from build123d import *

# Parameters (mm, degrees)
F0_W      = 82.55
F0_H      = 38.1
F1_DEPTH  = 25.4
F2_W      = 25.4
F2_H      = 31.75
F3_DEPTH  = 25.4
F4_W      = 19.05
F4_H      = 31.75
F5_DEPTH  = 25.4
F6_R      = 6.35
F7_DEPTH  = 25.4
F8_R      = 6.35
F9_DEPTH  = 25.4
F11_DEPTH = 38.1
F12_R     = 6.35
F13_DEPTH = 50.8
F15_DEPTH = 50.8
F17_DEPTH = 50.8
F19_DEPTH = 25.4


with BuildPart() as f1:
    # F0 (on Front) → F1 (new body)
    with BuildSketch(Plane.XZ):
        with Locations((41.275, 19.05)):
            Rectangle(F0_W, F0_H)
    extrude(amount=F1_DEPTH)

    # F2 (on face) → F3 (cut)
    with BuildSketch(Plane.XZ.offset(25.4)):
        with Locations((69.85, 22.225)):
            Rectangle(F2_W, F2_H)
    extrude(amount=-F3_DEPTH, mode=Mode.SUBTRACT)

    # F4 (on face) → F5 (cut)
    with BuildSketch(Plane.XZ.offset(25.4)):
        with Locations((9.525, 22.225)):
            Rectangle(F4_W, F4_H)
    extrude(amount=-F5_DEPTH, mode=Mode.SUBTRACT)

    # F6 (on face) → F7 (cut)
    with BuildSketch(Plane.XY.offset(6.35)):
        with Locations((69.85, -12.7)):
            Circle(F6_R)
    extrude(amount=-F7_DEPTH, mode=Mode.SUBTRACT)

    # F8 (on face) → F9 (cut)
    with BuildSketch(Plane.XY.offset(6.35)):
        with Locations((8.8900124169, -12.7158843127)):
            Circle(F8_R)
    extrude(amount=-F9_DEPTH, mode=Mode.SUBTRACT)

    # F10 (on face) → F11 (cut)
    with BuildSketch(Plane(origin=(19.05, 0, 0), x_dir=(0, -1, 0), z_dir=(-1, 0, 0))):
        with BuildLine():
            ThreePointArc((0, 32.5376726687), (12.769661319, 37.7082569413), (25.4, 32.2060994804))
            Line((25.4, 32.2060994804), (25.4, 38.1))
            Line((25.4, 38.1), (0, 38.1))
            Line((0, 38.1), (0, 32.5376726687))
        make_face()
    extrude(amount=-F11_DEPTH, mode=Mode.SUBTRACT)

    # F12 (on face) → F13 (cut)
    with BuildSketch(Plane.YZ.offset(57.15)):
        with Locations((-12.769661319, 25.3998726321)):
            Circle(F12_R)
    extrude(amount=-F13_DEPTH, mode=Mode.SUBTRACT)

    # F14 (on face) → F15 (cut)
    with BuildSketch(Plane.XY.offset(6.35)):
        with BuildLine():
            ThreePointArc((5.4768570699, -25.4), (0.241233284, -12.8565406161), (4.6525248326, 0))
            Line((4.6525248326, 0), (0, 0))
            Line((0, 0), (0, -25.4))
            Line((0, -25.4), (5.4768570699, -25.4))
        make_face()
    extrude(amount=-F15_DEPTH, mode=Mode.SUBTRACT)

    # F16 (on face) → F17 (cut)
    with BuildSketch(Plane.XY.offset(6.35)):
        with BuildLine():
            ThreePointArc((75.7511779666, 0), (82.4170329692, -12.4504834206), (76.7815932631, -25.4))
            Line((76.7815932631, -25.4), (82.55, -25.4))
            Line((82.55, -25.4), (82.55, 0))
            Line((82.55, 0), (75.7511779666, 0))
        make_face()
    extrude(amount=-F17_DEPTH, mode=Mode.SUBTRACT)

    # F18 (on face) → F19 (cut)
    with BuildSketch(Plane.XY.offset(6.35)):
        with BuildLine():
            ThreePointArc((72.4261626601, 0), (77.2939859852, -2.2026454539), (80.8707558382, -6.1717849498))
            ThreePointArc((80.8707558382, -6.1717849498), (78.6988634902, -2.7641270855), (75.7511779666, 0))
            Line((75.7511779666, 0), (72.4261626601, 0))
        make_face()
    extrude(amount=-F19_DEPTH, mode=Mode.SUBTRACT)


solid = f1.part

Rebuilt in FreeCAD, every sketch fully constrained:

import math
import FreeCAD as App
import Part
import Sketcher
Q = App.Units.Quantity

doc = App.newDocument("Part")
params = doc.addObject("Spreadsheet::Sheet", "Params")
for row, (alias, value) in enumerate([
    ("sketch1_height", "1.5 in"),
    ("sketch1_width", "3.25 in"),
    ("pad1_length", "1 in"),
    ("sketch2_width", "1 in"),
    ("sketch2_height", "1.25 in"),
    ("pocket1_length", "1 in"),
    ("sketch3_width", "0.75 in"),
    ("sketch3_height", "1.25 in"),
    ("pocket2_length", "1 in"),
    ("sketch4_diameter", "0.5 in"),
    ("pocket3_length", "1 in"),
    ("sketch5_diameter", "0.5 in"),
    ("pocket4_length", "1 in"),
    ("sketch6_width", "1 in"),
    ("pocket5_length", "1.5 in"),
    ("sketch7_diameter", "0.5 in"),
    ("pocket6_length", "2 in"),
    ("sketch8_height", "1 in"),
    ("pocket7_length", "2 in"),
    ("sketch9_height", "1 in"),
    ("pocket8_length", "2 in"),
    ("pocket9_length", "1 in"),
], start=1):
    params.set(f"A{row}", alias)
    params.set(f"B{row}", "=" + value)
    params.setAlias(f"B{row}", alias)

body = doc.addObject("PartDesign::Body", "Body")

sketch1 = body.newObject("Sketcher::SketchObject", "Sketch")
sketch1.AttachmentSupport = (doc.getObject("XZ_Plane"), [""])
sketch1.MapMode = "FlatFace"
sketch1.addGeometry([
    Part.LineSegment(App.Vector(0, 38, 0), App.Vector(0, 0, 0)),
    Part.LineSegment(App.Vector(0, 0, 0), App.Vector(83, 0, 0)),
    Part.LineSegment(App.Vector(83, 0, 0), App.Vector(83, 38, 0)),
    Part.LineSegment(App.Vector(83, 38, 0), App.Vector(0, 38, 0)),
], False)
sketch1.addConstraint([
    Sketcher.Constraint("Coincident", 0, 2, 1, 1),
    Sketcher.Constraint("Coincident", 1, 2, 2, 1),
    Sketcher.Constraint("Coincident", 2, 2, 3, 1),
    Sketcher.Constraint("Coincident", 3, 2, 0, 1),
    Sketcher.Constraint("Vertical", 0),
    Sketcher.Constraint("Horizontal", 1),
    Sketcher.Constraint("Vertical", 2),
    Sketcher.Constraint("Horizontal", 3),
    Sketcher.Constraint("Coincident", 0, 2, -1, 1),
    Sketcher.Constraint("DistanceY", 0, 2, 0, 1, Q("1.5 in")),
    Sketcher.Constraint("DistanceX", 1, 1, 1, 2, Q("3.25 in")),
])
sketch1.setExpression("Constraints[9]", "Params.sketch1_height")
sketch1.setExpression("Constraints[10]", "Params.sketch1_width")
pad1 = body.newObject("PartDesign::Pad", "Pad")
pad1.Profile = sketch1
pad1.setExpression("Length", "Params.pad1_length")

sketch2 = body.newObject("Sketcher::SketchObject", "Sketch001")
sketch2.AttachmentSupport = (doc.getObject("XZ_Plane"), [""])
sketch2.MapMode = "FlatFace"
sketch2.AttachmentOffset = App.Placement(App.Vector(0, 0, 1 * 25.4), App.Rotation())
sketch2.addGeometry([
    Part.LineSegment(App.Vector(57, 38, 0), App.Vector(57, 6, 0)),
    Part.LineSegment(App.Vector(57, 6, 0), App.Vector(83, 6, 0)),
    Part.LineSegment(App.Vector(83, 6, 0), App.Vector(83, 38, 0)),
    Part.LineSegment(App.Vector(83, 38, 0), App.Vector(57, 38, 0)),
], False)
sketch2.addConstraint([
    Sketcher.Constraint("Coincident", 0, 2, 1, 1),
    Sketcher.Constraint("Coincident", 1, 2, 2, 1),
    Sketcher.Constraint("Coincident", 2, 2, 3, 1),
    Sketcher.Constraint("Coincident", 3, 2, 0, 1),
    Sketcher.Constraint("Vertical", 0),
    Sketcher.Constraint("Horizontal", 1),
    Sketcher.Constraint("Vertical", 2),
    Sketcher.Constraint("Horizontal", 3),
    Sketcher.Constraint("DistanceX", 1, 1, 1, 2, Q("1 in")),
    Sketcher.Constraint("DistanceY", 0, 2, 0, 1, Q("1.25 in")),
    Sketcher.Constraint("DistanceY", -1, 1, 2, 2, Q("1.5 in")),
    Sketcher.Constraint("DistanceX", -1, 1, 0, 2, Q("2.25 in")),
])
sketch2.setExpression("Constraints[8]", "Params.sketch2_width")
sketch2.setExpression("Constraints[9]", "Params.sketch2_height")
pocket1 = body.newObject("PartDesign::Pocket", "Pocket")
pocket1.Profile = sketch2
pocket1.setExpression("Length", "Params.pocket1_length")

sketch3 = body.newObject("Sketcher::SketchObject", "Sketch002")
sketch3.AttachmentSupport = (doc.getObject("XZ_Plane"), [""])
sketch3.MapMode = "FlatFace"
sketch3.AttachmentOffset = App.Placement(App.Vector(0, 0, 1 * 25.4), App.Rotation())
sketch3.addGeometry([
    Part.LineSegment(App.Vector(0, 38, 0), App.Vector(0, 6, 0)),
    Part.LineSegment(App.Vector(0, 6, 0), App.Vector(19, 6, 0)),
    Part.LineSegment(App.Vector(19, 6, 0), App.Vector(19, 38, 0)),
    Part.LineSegment(App.Vector(19, 38, 0), App.Vector(0, 38, 0)),
], False)
sketch3.addConstraint([
    Sketcher.Constraint("Coincident", 0, 2, 1, 1),
    Sketcher.Constraint("Coincident", 1, 2, 2, 1),
    Sketcher.Constraint("Coincident", 2, 2, 3, 1),
    Sketcher.Constraint("Coincident", 3, 2, 0, 1),
    Sketcher.Constraint("Vertical", 0),
    Sketcher.Constraint("Horizontal", 1),
    Sketcher.Constraint("Vertical", 2),
    Sketcher.Constraint("Horizontal", 3),
    Sketcher.Constraint("PointOnObject", 0, 2, -2),
    Sketcher.Constraint("DistanceX", 1, 1, 1, 2, Q("0.75 in")),
    Sketcher.Constraint("DistanceY", 0, 2, 0, 1, Q("1.25 in")),
    Sketcher.Constraint("DistanceY", -1, 1, 2, 2, Q("1.5 in")),
])
sketch3.setExpression("Constraints[9]", "Params.sketch3_width")
sketch3.setExpression("Constraints[10]", "Params.sketch3_height")
pocket2 = body.newObject("PartDesign::Pocket", "Pocket001")
pocket2.Profile = sketch3
pocket2.setExpression("Length", "Params.pocket2_length")

sketch4 = body.newObject("Sketcher::SketchObject", "Sketch003")
sketch4.AttachmentSupport = (doc.getObject("XY_Plane"), [""])
sketch4.MapMode = "FlatFace"
sketch4.AttachmentOffset = App.Placement(App.Vector(0, 0, 0.25 * 25.4), App.Rotation())
sketch4.addGeometry(Part.Circle(App.Vector(70, -13, 0), App.Vector(0, 0, 1), 6), False)
sketch4.addConstraint([
    Sketcher.Constraint("Diameter", 0, Q("0.5 in")),
    Sketcher.Constraint("DistanceY", 0, 3, -1, 1, Q("0.5 in")),
    Sketcher.Constraint("DistanceX", -1, 1, 0, 3, Q("2.75 in")),
])
sketch4.setExpression("Constraints[0]", "Params.sketch4_diameter")
pocket3 = body.newObject("PartDesign::Pocket", "Pocket002")
pocket3.Profile = sketch4
pocket3.setExpression("Length", "Params.pocket3_length")

sketch5 = body.newObject("Sketcher::SketchObject", "Sketch004")
sketch5.AttachmentSupport = (doc.getObject("XY_Plane"), [""])
sketch5.MapMode = "FlatFace"
sketch5.AttachmentOffset = App.Placement(App.Vector(0, 0, 0.25 * 25.4), App.Rotation())
sketch5.addGeometry(Part.Circle(App.Vector(9, -13, 0), App.Vector(0, 0, 1), 6), False)
sketch5.addConstraint([
    Sketcher.Constraint("Diameter", 0, Q("0.5 in")),
    Sketcher.Constraint("DistanceX", -1, 1, 0, 3, 8.890012),
    Sketcher.Constraint("DistanceY", 0, 3, -1, 1, 12.715884),
])
sketch5.setExpression("Constraints[0]", "Params.sketch5_diameter")
pocket4 = body.newObject("PartDesign::Pocket", "Pocket003")
pocket4.Profile = sketch5
pocket4.setExpression("Length", "Params.pocket4_length")

sketch6 = body.newObject("Sketcher::SketchObject", "Sketch005")
sketch6.AttachmentSupport = (doc.getObject("YZ_Plane"), [""])
sketch6.MapMode = "FlatFace"
sketch6.AttachmentOffset = App.Placement(App.Vector(0, 0, 0.75 * 25.4), App.Rotation())
sketch6.addGeometry([
    Part.ArcOfCircle(Part.Circle(App.Vector(-13, 20, 0), App.Vector(0, 0, 1), 18), math.radians(45), math.radians(136)),
    Part.LineSegment(App.Vector(-25, 32, 0), App.Vector(-25, 38, 0)),
    Part.LineSegment(App.Vector(-25, 38, 0), App.Vector(0, 38, 0)),
    Part.LineSegment(App.Vector(0, 38, 0), App.Vector(0, 33, 0)),
], False)
sketch6.addConstraint([
    Sketcher.Constraint("Coincident", 0, 2, 1, 1),
    Sketcher.Constraint("Coincident", 1, 2, 2, 1),
    Sketcher.Constraint("Coincident", 2, 2, 3, 1),
    Sketcher.Constraint("Coincident", 3, 2, 0, 1),
    Sketcher.Constraint("Vertical", 1),
    Sketcher.Constraint("Horizontal", 2),
    Sketcher.Constraint("Vertical", 3),
    Sketcher.Constraint("PointOnObject", 2, 2, -2),
    Sketcher.Constraint("DistanceX", 2, 1, 2, 2, Q("1 in")),
    Sketcher.Constraint("DistanceY", -1, 1, 1, 2, Q("1.5 in")),
    Sketcher.Constraint("Radius", 0, 17.782031),
    Sketcher.Constraint("DistanceY", 1, 1, 1, 2, 5.893901),
    Sketcher.Constraint("DistanceY", 0, 3, 0, 2, Q("0.4833999 in")),
])
sketch6.setExpression("Constraints[8]", "Params.sketch6_width")
pocket5 = body.newObject("PartDesign::Pocket", "Pocket004")
pocket5.Profile = sketch6
pocket5.setExpression("Length", "Params.pocket5_length")
pocket5.Reversed = True

sketch7 = body.newObject("Sketcher::SketchObject", "Sketch006")
sketch7.AttachmentSupport = (doc.getObject("YZ_Plane"), [""])
sketch7.MapMode = "FlatFace"
sketch7.AttachmentOffset = App.Placement(App.Vector(0, 0, 2.25 * 25.4), App.Rotation())
sketch7.addGeometry(Part.Circle(App.Vector(-13, 25, 0), App.Vector(0, 0, 1), 6), False)
sketch7.addConstraint([
    Sketcher.Constraint("Diameter", 0, Q("0.5 in")),
    Sketcher.Constraint("DistanceX", 0, 3, -1, 1, 12.769661),
    Sketcher.Constraint("DistanceY", -1, 1, 0, 3, 25.399873),
])
sketch7.setExpression("Constraints[0]", "Params.sketch7_diameter")
pocket6 = body.newObject("PartDesign::Pocket", "Pocket005")
pocket6.Profile = sketch7
pocket6.setExpression("Length", "Params.pocket6_length")

sketch8 = body.newObject("Sketcher::SketchObject", "Sketch007")
sketch8.AttachmentSupport = (doc.getObject("XY_Plane"), [""])
sketch8.MapMode = "FlatFace"
sketch8.AttachmentOffset = App.Placement(App.Vector(0, 0, 0.25 * 25.4), App.Rotation())
sketch8.addGeometry([
    Part.ArcOfCircle(Part.Circle(App.Vector(19.4, -12.2, 0), App.Vector(0, 0, 1), 19.1), math.radians(140), math.radians(223)),
    Part.LineSegment(App.Vector(4.7, 0, 0), App.Vector(0, 0, 0)),
    Part.LineSegment(App.Vector(0, 0, 0), App.Vector(0, -25.4, 0)),
    Part.LineSegment(App.Vector(0, -25.4, 0), App.Vector(5.5, -25.4, 0)),
], False)
sketch8.addConstraint([
    Sketcher.Constraint("Coincident", 0, 1, 1, 1),
    Sketcher.Constraint("Coincident", 1, 2, 2, 1),
    Sketcher.Constraint("Coincident", 2, 2, 3, 1),
    Sketcher.Constraint("Coincident", 3, 2, 0, 2),
    Sketcher.Constraint("Horizontal", 1),
    Sketcher.Constraint("Vertical", 2),
    Sketcher.Constraint("Horizontal", 3),
    Sketcher.Constraint("Coincident", 1, 2, -1, 1),
    Sketcher.Constraint("DistanceY", 2, 2, 2, 1, Q("1 in")),
    Sketcher.Constraint("Radius", 0, 19.141135),
    Sketcher.Constraint("DistanceX", 1, 2, 1, 1, 4.652525),
    Sketcher.Constraint("DistanceX", 3, 1, 3, 2, 5.476857),
])
sketch8.setExpression("Constraints[8]", "Params.sketch8_height")
pocket7 = body.newObject("PartDesign::Pocket", "Pocket006")
pocket7.Profile = sketch8
pocket7.setExpression("Length", "Params.pocket7_length")

sketch9 = body.newObject("Sketcher::SketchObject", "Sketch008")
sketch9.AttachmentSupport = (doc.getObject("XY_Plane"), [""])
sketch9.MapMode = "FlatFace"
sketch9.AttachmentOffset = App.Placement(App.Vector(0, 0, 0.25 * 25.4), App.Rotation())
sketch9.addGeometry([
    Part.ArcOfCircle(Part.Circle(App.Vector(66, -13, 0), App.Vector(0, 0, 1), 16), math.radians(-49), math.radians(54)),
    Part.LineSegment(App.Vector(77, -25, 0), App.Vector(83, -25, 0)),
    Part.LineSegment(App.Vector(83, -25, 0), App.Vector(83, 0, 0)),
    Part.LineSegment(App.Vector(83, 0, 0), App.Vector(76, 0, 0)),
], False)
sketch9.addConstraint([
    Sketcher.Constraint("Coincident", 0, 1, 1, 1),
    Sketcher.Constraint("Coincident", 1, 2, 2, 1),
    Sketcher.Constraint("Coincident", 2, 2, 3, 1),
    Sketcher.Constraint("Coincident", 3, 2, 0, 2),
    Sketcher.Constraint("Horizontal", 1),
    Sketcher.Constraint("Vertical", 2),
    Sketcher.Constraint("Horizontal", 3),
    Sketcher.Constraint("PointOnObject", 2, 2, -1),
    Sketcher.Constraint("DistanceY", 2, 1, 2, 2, Q("1 in")),
    Sketcher.Constraint("DistanceX", -1, 1, 1, 2, Q("3.25 in")),
    Sketcher.Constraint("Radius", 0, 16.200266),
    Sketcher.Constraint("DistanceX", 1, 1, 1, 2, 5.768407),
    Sketcher.Constraint("DistanceX", 3, 2, 3, 1, 6.798822),
])
sketch9.setExpression("Constraints[8]", "Params.sketch9_height")
pocket8 = body.newObject("PartDesign::Pocket", "Pocket007")
pocket8.Profile = sketch9
pocket8.setExpression("Length", "Params.pocket8_length")

sketch10 = body.newObject("Sketcher::SketchObject", "Sketch009")
sketch10.AttachmentSupport = (doc.getObject("XY_Plane"), [""])
sketch10.MapMode = "FlatFace"
sketch10.AttachmentOffset = App.Placement(App.Vector(0, 0, 0.25 * 25.4), App.Rotation())
sketch10.addGeometry([
    Part.ArcOfCircle(Part.Circle(App.Vector(69.6, -12.7, 0), App.Vector(0, 0, 1), 13), math.radians(30), math.radians(77)),
    Part.ArcOfCircle(Part.Circle(App.Vector(66.2, -13.1, 0), App.Vector(0, 0, 1), 16.2), math.radians(25), math.radians(54)),
    Part.LineSegment(App.Vector(75.8, 0, 0), App.Vector(72.4, 0, 0)),
], False)
sketch10.addConstraint([
    Sketcher.Constraint("Coincident", 0, 1, 1, 1),
    Sketcher.Constraint("Coincident", 1, 2, 2, 1),
    Sketcher.Constraint("Coincident", 2, 2, 0, 2),
    Sketcher.Constraint("Horizontal", 2),
    Sketcher.Constraint("PointOnObject", 1, 2, -1),
    Sketcher.Constraint("Radius", 0, 13.047268),
    Sketcher.Constraint("Radius", 1, 16.200266),
    Sketcher.Constraint("DistanceX", 1, 3, 0, 3, 3.365202),
    Sketcher.Constraint("DistanceX", 2, 2, 2, 1, 3.325015),
    Sketcher.Constraint("DistanceX", -1, 1, 1, 3, 66.230081),
    Sketcher.Constraint("DistanceY", 1, 3, -1, 1, 13.107148),
])
pocket9 = body.newObject("PartDesign::Pocket", "Pocket008")
pocket9.Profile = sketch10
pocket9.setExpression("Length", "Params.pocket9_length")

doc.recompute()
